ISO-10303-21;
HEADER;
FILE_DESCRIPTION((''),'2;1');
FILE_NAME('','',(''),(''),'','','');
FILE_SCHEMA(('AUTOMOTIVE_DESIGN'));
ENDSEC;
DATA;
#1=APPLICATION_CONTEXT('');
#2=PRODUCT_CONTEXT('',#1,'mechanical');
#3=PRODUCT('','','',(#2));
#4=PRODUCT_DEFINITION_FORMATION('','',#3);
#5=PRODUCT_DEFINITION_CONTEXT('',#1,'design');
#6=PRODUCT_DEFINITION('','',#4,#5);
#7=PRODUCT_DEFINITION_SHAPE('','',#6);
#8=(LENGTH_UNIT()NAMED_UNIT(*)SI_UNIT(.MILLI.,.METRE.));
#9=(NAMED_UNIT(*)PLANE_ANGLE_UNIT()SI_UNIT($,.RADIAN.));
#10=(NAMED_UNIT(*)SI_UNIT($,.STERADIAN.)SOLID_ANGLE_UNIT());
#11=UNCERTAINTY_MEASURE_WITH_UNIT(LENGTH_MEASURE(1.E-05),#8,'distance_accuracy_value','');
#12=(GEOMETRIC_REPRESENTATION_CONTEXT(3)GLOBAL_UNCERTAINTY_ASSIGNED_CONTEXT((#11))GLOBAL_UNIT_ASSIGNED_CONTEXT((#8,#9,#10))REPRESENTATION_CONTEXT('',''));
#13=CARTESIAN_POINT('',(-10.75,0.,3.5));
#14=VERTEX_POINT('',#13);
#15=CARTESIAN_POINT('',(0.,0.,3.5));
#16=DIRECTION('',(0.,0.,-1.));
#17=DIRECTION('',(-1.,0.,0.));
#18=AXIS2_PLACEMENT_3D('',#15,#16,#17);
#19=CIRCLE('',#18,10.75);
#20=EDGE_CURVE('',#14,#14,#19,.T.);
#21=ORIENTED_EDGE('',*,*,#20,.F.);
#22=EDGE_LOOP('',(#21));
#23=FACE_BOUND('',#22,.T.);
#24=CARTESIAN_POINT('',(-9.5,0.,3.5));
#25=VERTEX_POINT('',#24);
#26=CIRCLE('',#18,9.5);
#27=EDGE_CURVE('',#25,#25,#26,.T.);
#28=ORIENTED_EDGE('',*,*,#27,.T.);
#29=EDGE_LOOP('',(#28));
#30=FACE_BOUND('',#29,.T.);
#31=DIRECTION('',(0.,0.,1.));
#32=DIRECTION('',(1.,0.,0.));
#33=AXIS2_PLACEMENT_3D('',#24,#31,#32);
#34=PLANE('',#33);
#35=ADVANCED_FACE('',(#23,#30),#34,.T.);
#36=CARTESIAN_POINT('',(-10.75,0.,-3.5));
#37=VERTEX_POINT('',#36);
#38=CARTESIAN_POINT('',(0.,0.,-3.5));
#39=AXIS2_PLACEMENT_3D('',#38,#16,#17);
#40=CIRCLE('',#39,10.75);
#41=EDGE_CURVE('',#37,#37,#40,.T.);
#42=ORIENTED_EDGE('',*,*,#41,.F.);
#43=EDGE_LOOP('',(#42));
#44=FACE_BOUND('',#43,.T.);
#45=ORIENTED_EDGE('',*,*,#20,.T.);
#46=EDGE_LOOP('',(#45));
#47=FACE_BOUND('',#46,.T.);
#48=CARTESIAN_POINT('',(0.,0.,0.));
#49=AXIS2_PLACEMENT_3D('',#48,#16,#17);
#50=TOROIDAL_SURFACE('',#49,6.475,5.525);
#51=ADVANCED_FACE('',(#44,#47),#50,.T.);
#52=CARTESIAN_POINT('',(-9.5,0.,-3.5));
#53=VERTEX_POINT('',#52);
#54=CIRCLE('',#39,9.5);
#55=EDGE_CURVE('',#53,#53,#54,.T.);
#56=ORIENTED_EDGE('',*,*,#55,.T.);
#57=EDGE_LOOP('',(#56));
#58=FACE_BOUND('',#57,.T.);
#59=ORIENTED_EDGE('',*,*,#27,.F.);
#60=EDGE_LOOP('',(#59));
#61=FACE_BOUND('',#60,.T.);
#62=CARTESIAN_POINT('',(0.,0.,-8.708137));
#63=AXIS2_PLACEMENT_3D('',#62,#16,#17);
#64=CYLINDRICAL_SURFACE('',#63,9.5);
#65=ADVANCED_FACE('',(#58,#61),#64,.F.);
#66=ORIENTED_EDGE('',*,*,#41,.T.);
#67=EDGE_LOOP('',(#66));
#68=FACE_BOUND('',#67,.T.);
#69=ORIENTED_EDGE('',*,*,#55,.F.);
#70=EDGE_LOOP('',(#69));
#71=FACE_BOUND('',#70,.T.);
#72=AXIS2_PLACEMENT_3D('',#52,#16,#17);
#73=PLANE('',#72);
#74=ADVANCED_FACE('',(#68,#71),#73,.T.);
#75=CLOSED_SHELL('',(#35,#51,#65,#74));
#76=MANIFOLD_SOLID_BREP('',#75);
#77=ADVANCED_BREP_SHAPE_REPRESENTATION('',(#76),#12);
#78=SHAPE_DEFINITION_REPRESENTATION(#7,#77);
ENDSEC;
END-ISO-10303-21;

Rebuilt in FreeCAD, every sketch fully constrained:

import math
import FreeCAD as App
import Part
import Sketcher
from FreeCAD import Vector

doc = App.newDocument("Part")
body = doc.addObject("PartDesign::Body", "Body")

# Sketch on XZ plane
sketch1 = body.newObject("Sketcher::SketchObject", "Sketch")
sketch1.AttachmentSupport = (doc.getObject("XZ_Plane"), [""])
sketch1.MapMode = "FlatFace"
sketch1.addGeometry([
    Part.LineSegment(Vector(-9.5, -3.5, 0), Vector(-10.8, -3.5, 0)),
    Part.ArcOfCircle(Part.Circle(Vector(-6.5, 0, 0), Vector(0, 0, 1), 5.5), math.radians(141), math.radians(219)),
    Part.LineSegment(Vector(-10.8, 3.5, 0), Vector(-9.5, 3.5, 0)),
    Part.LineSegment(Vector(-9.5, 3.5, 0), Vector(-9.5, -3.5, 0)),
], False)
sketch1.addConstraint([
    Sketcher.Constraint("Coincident", 0, 2, 1, 2),
    Sketcher.Constraint("Coincident", 1, 1, 2, 1),
    Sketcher.Constraint("Coincident", 2, 2, 3, 1),
    Sketcher.Constraint("Coincident", 3, 2, 0, 1),
    Sketcher.Constraint("Horizontal", 0),
    Sketcher.Constraint("Horizontal", 2),
    Sketcher.Constraint("Vertical", 3),
    Sketcher.Constraint("Symmetric", 0, 2, 1, 1, -1),
    Sketcher.Constraint("DistanceY", 3, 2, 3, 1, 7.0),
    Sketcher.Constraint("Radius", 1, 5.525),
    Sketcher.Constraint("DistanceX", 0, 2, 0, 1, 1.25),
    Sketcher.Constraint("DistanceX", 2, 2, -1, 1, 9.5),
])
revolution = body.newObject("PartDesign::Revolution", "Revolution")
revolution.Profile = sketch1
revolution.ReferenceAxis = (sketch1, ["V_Axis"])
revolution.Angle = 360

doc.recompute()
